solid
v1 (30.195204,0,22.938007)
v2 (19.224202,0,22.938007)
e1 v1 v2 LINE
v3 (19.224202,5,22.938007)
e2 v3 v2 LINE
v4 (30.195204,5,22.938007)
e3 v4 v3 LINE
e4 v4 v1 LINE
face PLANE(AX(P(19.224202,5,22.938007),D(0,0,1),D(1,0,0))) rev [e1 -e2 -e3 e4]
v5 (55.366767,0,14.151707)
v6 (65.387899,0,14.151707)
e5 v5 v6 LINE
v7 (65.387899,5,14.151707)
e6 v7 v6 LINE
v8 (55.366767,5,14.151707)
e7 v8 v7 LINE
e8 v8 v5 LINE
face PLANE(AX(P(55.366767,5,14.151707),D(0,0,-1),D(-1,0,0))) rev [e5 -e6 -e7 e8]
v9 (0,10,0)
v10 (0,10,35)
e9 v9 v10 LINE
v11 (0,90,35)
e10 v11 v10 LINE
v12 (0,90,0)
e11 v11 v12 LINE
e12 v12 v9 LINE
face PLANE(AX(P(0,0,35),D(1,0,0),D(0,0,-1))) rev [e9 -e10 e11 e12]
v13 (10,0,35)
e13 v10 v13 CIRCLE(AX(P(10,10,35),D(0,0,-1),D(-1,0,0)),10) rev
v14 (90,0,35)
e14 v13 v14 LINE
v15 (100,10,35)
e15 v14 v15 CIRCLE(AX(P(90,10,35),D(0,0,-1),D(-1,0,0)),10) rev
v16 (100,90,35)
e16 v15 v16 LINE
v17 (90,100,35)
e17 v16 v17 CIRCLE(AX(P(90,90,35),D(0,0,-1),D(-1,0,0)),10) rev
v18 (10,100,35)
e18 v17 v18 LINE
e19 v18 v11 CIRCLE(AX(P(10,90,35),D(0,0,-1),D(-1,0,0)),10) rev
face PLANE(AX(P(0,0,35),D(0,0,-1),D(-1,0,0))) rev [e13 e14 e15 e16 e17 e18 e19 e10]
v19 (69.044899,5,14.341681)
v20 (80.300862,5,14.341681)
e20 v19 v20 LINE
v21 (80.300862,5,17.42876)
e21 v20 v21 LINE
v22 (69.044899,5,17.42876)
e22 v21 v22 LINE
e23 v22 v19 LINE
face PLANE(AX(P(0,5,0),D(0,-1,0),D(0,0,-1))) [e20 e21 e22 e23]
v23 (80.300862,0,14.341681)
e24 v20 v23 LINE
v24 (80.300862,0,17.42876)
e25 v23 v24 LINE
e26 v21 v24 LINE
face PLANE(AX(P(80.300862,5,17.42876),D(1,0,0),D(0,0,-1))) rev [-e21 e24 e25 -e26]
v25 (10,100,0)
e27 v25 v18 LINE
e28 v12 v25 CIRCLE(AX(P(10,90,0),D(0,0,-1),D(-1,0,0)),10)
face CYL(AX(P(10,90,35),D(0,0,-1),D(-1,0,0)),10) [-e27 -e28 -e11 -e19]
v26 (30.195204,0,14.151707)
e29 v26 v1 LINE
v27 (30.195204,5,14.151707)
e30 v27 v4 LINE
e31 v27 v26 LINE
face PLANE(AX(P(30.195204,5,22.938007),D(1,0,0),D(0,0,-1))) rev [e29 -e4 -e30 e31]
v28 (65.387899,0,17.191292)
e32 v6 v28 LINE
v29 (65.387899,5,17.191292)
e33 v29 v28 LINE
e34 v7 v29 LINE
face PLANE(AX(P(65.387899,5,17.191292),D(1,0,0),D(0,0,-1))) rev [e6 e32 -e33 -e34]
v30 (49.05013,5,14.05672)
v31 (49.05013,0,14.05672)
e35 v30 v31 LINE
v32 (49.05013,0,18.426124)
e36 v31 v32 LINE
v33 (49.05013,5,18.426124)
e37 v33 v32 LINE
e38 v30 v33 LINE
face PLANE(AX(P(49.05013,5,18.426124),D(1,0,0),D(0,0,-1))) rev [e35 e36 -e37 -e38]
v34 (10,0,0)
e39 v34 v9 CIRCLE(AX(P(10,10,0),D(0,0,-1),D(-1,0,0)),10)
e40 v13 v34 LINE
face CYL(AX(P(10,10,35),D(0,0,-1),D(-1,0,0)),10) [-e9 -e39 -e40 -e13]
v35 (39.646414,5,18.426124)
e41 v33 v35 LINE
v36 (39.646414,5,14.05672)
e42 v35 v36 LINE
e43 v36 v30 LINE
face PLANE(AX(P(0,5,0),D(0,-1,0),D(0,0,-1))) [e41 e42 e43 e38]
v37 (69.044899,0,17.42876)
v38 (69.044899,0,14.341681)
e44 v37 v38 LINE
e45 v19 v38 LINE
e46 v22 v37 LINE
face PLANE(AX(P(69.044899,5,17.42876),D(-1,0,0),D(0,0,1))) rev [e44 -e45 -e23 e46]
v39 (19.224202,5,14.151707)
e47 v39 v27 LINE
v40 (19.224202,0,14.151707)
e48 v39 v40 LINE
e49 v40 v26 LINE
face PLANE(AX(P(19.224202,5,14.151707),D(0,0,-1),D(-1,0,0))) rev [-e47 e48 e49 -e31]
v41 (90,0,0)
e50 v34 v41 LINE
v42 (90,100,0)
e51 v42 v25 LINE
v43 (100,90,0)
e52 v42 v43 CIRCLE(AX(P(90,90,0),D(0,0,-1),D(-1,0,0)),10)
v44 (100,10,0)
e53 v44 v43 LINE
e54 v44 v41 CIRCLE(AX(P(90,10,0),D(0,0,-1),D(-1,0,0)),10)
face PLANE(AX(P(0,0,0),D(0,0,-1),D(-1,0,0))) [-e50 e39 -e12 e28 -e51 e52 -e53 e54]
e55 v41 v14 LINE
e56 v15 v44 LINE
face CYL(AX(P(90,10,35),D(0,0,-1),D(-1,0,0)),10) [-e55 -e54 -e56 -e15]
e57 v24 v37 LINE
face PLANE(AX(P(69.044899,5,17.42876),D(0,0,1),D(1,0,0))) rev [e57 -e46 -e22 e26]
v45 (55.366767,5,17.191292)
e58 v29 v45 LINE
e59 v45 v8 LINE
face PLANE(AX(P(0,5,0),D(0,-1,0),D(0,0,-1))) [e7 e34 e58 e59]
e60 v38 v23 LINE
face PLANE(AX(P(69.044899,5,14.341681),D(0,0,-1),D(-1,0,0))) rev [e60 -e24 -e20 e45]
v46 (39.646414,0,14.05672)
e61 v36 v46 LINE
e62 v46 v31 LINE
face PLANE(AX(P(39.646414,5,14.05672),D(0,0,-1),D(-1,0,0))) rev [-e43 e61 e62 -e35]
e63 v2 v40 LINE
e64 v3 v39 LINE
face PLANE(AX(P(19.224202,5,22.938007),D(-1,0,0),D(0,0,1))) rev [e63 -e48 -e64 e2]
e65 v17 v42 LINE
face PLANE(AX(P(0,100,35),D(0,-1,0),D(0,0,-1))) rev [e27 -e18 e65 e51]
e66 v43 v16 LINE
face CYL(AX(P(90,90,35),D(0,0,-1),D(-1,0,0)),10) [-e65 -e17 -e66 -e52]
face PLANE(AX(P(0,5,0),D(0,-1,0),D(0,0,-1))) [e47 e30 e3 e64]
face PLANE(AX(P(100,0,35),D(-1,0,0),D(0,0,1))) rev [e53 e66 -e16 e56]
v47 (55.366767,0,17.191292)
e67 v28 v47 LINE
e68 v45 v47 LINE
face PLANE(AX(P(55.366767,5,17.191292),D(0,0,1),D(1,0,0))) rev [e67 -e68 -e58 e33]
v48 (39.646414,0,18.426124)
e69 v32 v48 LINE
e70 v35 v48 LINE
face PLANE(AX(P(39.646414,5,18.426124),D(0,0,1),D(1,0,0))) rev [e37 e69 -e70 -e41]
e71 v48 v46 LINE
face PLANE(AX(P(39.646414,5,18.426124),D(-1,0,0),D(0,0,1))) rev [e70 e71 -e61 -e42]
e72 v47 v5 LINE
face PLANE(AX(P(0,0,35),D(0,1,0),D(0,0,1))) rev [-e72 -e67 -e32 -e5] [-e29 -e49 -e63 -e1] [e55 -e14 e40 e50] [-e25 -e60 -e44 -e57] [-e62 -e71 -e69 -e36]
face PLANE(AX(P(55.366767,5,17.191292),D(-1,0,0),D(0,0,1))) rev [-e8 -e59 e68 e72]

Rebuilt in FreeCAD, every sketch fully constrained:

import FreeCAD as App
import Part
import Sketcher
from FreeCAD import Vector
Q = App.Units.Quantity


def edges_at(feature, points):
    """Names of the edges that pass closest to the given points."""
    edges = feature.Shape.Edges
    near = lambda p: min(range(len(edges)), key=lambda i: edges[i].distToShape(Part.Vertex(*p))[0])
    return sorted({f"Edge{near(p) + 1}" for p in points})

doc = App.newDocument("Part")
params = doc.addObject("Spreadsheet::Sheet", "Params")
for row, (alias, value) in enumerate([
    ("sketch1_width", "100 mm"),
    ("pad1_length", "35 mm"),
    ("fillet_radius", "10 mm"),
    ("pocket1_length", "5 mm"),
], start=1):
    params.set(f"A{row}", alias)
    params.set(f"B{row}", "=" + value)
    params.setAlias(f"B{row}", alias)

body = doc.addObject("PartDesign::Body", "Body")

# Sketch on XY plane
sketch1 = doc.addObject("Sketcher::SketchObject", "Sketch")
body.addObject(sketch1)
sketch1.AttachmentSupport = (doc.XY_Plane, [""])
sketch1.MapMode = "FlatFace"
sketch1.addGeometry(Part.LineSegment(Vector(0, 100, 0), Vector(0, 0, 0)), False)
sketch1.addGeometry(Part.LineSegment(Vector(0, 0, 0), Vector(100, 0, 0)), False)
sketch1.addGeometry(Part.LineSegment(Vector(100, 0, 0), Vector(100, 100, 0)), False)
sketch1.addGeometry(Part.LineSegment(Vector(100, 100, 0), Vector(0, 100, 0)), False)
sketch1.addConstraint(Sketcher.Constraint("Coincident", 0, 2, 1, 1))
sketch1.addConstraint(Sketcher.Constraint("Coincident", 1, 2, 2, 1))
sketch1.addConstraint(Sketcher.Constraint("Coincident", 2, 2, 3, 1))
sketch1.addConstraint(Sketcher.Constraint("Coincident", 3, 2, 0, 1))
sketch1.addConstraint(Sketcher.Constraint("Vertical", 0))
sketch1.addConstraint(Sketcher.Constraint("Horizontal", 1))
sketch1.addConstraint(Sketcher.Constraint("Vertical", 2))
sketch1.addConstraint(Sketcher.Constraint("Horizontal", 3))
sketch1.addConstraint(Sketcher.Constraint("Coincident", 0, 2, -1, 1))
sketch1.addConstraint(Sketcher.Constraint("Equal", 3, 0))
sketch1.addConstraint(Sketcher.Constraint("DistanceX", 1, 1, 1, 2, Q("100 mm")))
sketch1.setExpression("Constraints[10]", "Params.sketch1_width")
pad1 = doc.addObject("PartDesign::Pad", "Pad")
body.addObject(pad1)
pad1.Profile = sketch1
pad1.setExpression("Length", "Params.pad1_length")
doc.recompute()

fillet = doc.addObject("PartDesign::Fillet", "Fillet")
body.addObject(fillet)
fillet.Base = (pad1, edges_at(pad1, [
    (0, 100, 17.5),
    (100, 100, 17.5),
    (100, 0, 17.5),
    (0, 0, 17.5),
]))
fillet.setExpression("Radius", "Params.fillet_radius")

# Sketch on XZ plane
sketch2 = doc.addObject("Sketcher::SketchObject", "Sketch001")
body.addObject(sketch2)
sketch2.AttachmentSupport = (doc.XZ_Plane, [""])
sketch2.MapMode = "FlatFace"
sketch2.addGeometry(Part.LineSegment(Vector(39.6, 18.4, 0), Vector(39.6, 14.1, 0)), False)
sketch2.addGeometry(Part.LineSegment(Vector(39.6, 14.1, 0), Vector(49.1, 14.1, 0)), False)
sketch2.addGeometry(Part.LineSegment(Vector(49.1, 14.1, 0), Vector(49.1, 18.4, 0)), False)
sketch2.addGeometry(Part.LineSegment(Vector(49.1, 18.4, 0), Vector(39.6, 18.4, 0)), False)
sketch2.addGeometry(Part.LineSegment(Vector(19.2, 22.9, 0), Vector(19.2, 14.2, 0)), False)
sketch2.addGeometry(Part.LineSegment(Vector(19.2, 14.2, 0), Vector(30.2, 14.2, 0)), False)
sketch2.addGeometry(Part.LineSegment(Vector(30.2, 14.2, 0), Vector(30.2, 22.9, 0)), False)
sketch2.addGeometry(Part.LineSegment(Vector(30.2, 22.9, 0), Vector(19.2, 22.9, 0)), False)
sketch2.addGeometry(Part.LineSegment(Vector(69, 17.4, 0), Vector(69, 14.3, 0)), False)
sketch2.addGeometry(Part.LineSegment(Vector(69, 14.3, 0), Vector(80.3, 14.3, 0)), False)
sketch2.addGeometry(Part.LineSegment(Vector(80.3, 14.3, 0), Vector(80.3, 17.4, 0)), False)
sketch2.addGeometry(Part.LineSegment(Vector(80.3, 17.4, 0), Vector(69, 17.4, 0)), False)
sketch2.addGeometry(Part.LineSegment(Vector(55.4, 17.2, 0), Vector(55.4, 14.2, 0)), False)
sketch2.addGeometry(Part.LineSegment(Vector(55.4, 14.2, 0), Vector(65.4, 14.2, 0)), False)
sketch2.addGeometry(Part.LineSegment(Vector(65.4, 14.2, 0), Vector(65.4, 17.2, 0)), False)
sketch2.addGeometry(Part.LineSegment(Vector(65.4, 17.2, 0), Vector(55.4, 17.2, 0)), False)
sketch2.addConstraint(Sketcher.Constraint("Coincident", 0, 2, 1, 1))
sketch2.addConstraint(Sketcher.Constraint("Coincident", 1, 2, 2, 1))
sketch2.addConstraint(Sketcher.Constraint("Coincident", 2, 2, 3, 1))
sketch2.addConstraint(Sketcher.Constraint("Coincident", 3, 2, 0, 1))
sketch2.addConstraint(Sketcher.Constraint("Coincident", 4, 2, 5, 1))
sketch2.addConstraint(Sketcher.Constraint("Coincident", 5, 2, 6, 1))
sketch2.addConstraint(Sketcher.Constraint("Coincident", 6, 2, 7, 1))
sketch2.addConstraint(Sketcher.Constraint("Coincident", 7, 2, 4, 1))
sketch2.addConstraint(Sketcher.Constraint("Coincident", 8, 2, 9, 1))
sketch2.addConstraint(Sketcher.Constraint("Coincident", 9, 2, 10, 1))
sketch2.addConstraint(Sketcher.Constraint("Coincident", 10, 2, 11, 1))
sketch2.addConstraint(Sketcher.Constraint("Coincident", 11, 2, 8, 1))
sketch2.addConstraint(Sketcher.Constraint("Coincident", 12, 2, 13, 1))
sketch2.addConstraint(Sketcher.Constraint("Coincident", 13, 2, 14, 1))
sketch2.addConstraint(Sketcher.Constraint("Coincident", 14, 2, 15, 1))
sketch2.addConstraint(Sketcher.Constraint("Coincident", 15, 2, 12, 1))
sketch2.addConstraint(Sketcher.Constraint("Vertical", 0))
sketch2.addConstraint(Sketcher.Constraint("Horizontal", 1))
sketch2.addConstraint(Sketcher.Constraint("Vertical", 2))
sketch2.addConstraint(Sketcher.Constraint("Horizontal", 3))
sketch2.addConstraint(Sketcher.Constraint("Vertical", 4))
sketch2.addConstraint(Sketcher.Constraint("Horizontal", 5))
sketch2.addConstraint(Sketcher.Constraint("Vertical", 6))
sketch2.addConstraint(Sketcher.Constraint("Horizontal", 7))
sketch2.addConstraint(Sketcher.Constraint("Vertical", 8))
sketch2.addConstraint(Sketcher.Constraint("Horizontal", 9))
sketch2.addConstraint(Sketcher.Constraint("Vertical", 10))
sketch2.addConstraint(Sketcher.Constraint("Horizontal", 11))
sketch2.addConstraint(Sketcher.Constraint("Vertical", 12))
sketch2.addConstraint(Sketcher.Constraint("Horizontal", 13))
sketch2.addConstraint(Sketcher.Constraint("Vertical", 14))
sketch2.addConstraint(Sketcher.Constraint("Horizontal", 15))
sketch2.addConstraint(Sketcher.Constraint("Horizontal", 5, 2, 12, 2))
sketch2.addConstraint(Sketcher.Constraint("DistanceX", 5, 1, 5, 2, Q("10.971002 mm")))
sketch2.addConstraint(Sketcher.Constraint("DistanceY", 4, 2, 4, 1, Q("8.7863 mm")))
sketch2.addConstraint(Sketcher.Constraint("DistanceX", 13, 2, 8, 2, Q("3.657001 mm")))
sketch2.addConstraint(Sketcher.Constraint("DistanceX", 13, 1, 13, 2, Q("10.021132 mm")))
sketch2.addConstraint(Sketcher.Constraint("DistanceY", 8, 2, 8, 1, Q("3.087078 mm")))
sketch2.addConstraint(Sketcher.Constraint("DistanceX", -1, 1, 8, 2, Q("69.044899 mm")))
sketch2.addConstraint(Sketcher.Constraint("DistanceX", 1, 1, 1, 2, Q("9.403716 mm")))
sketch2.addConstraint(Sketcher.Constraint("DistanceX", 9, 1, 9, 2, Q("11.255963 mm")))
sketch2.addConstraint(Sketcher.Constraint("DistanceY", 0, 2, 0, 1, Q("4.369403 mm")))
sketch2.addConstraint(Sketcher.Constraint("DistanceY", 12, 2, 12, 1, Q("3.039585 mm")))
sketch2.addConstraint(Sketcher.Constraint("DistanceY", -1, 1, 0, 2, Q("14.05672 mm")))
sketch2.addConstraint(Sketcher.Constraint("DistanceX", -1, 1, 1, 2, Q("49.05013 mm")))
sketch2.addConstraint(Sketcher.Constraint("DistanceY", -1, 1, 8, 2, Q("14.341681 mm")))
sketch2.addConstraint(Sketcher.Constraint("DistanceX", 4, 2, 0, 2, Q("20.422211 mm")))
sketch2.addConstraint(Sketcher.Constraint("DistanceY", 8, 2, 14, 2, Q("2.849611 mm")))
pocket1 = doc.addObject("PartDesign::Pocket", "Pocket")
body.addObject(pocket1)
pocket1.Profile = sketch2
pocket1.setExpression("Length", "Params.pocket1_length")

doc.recompute()
